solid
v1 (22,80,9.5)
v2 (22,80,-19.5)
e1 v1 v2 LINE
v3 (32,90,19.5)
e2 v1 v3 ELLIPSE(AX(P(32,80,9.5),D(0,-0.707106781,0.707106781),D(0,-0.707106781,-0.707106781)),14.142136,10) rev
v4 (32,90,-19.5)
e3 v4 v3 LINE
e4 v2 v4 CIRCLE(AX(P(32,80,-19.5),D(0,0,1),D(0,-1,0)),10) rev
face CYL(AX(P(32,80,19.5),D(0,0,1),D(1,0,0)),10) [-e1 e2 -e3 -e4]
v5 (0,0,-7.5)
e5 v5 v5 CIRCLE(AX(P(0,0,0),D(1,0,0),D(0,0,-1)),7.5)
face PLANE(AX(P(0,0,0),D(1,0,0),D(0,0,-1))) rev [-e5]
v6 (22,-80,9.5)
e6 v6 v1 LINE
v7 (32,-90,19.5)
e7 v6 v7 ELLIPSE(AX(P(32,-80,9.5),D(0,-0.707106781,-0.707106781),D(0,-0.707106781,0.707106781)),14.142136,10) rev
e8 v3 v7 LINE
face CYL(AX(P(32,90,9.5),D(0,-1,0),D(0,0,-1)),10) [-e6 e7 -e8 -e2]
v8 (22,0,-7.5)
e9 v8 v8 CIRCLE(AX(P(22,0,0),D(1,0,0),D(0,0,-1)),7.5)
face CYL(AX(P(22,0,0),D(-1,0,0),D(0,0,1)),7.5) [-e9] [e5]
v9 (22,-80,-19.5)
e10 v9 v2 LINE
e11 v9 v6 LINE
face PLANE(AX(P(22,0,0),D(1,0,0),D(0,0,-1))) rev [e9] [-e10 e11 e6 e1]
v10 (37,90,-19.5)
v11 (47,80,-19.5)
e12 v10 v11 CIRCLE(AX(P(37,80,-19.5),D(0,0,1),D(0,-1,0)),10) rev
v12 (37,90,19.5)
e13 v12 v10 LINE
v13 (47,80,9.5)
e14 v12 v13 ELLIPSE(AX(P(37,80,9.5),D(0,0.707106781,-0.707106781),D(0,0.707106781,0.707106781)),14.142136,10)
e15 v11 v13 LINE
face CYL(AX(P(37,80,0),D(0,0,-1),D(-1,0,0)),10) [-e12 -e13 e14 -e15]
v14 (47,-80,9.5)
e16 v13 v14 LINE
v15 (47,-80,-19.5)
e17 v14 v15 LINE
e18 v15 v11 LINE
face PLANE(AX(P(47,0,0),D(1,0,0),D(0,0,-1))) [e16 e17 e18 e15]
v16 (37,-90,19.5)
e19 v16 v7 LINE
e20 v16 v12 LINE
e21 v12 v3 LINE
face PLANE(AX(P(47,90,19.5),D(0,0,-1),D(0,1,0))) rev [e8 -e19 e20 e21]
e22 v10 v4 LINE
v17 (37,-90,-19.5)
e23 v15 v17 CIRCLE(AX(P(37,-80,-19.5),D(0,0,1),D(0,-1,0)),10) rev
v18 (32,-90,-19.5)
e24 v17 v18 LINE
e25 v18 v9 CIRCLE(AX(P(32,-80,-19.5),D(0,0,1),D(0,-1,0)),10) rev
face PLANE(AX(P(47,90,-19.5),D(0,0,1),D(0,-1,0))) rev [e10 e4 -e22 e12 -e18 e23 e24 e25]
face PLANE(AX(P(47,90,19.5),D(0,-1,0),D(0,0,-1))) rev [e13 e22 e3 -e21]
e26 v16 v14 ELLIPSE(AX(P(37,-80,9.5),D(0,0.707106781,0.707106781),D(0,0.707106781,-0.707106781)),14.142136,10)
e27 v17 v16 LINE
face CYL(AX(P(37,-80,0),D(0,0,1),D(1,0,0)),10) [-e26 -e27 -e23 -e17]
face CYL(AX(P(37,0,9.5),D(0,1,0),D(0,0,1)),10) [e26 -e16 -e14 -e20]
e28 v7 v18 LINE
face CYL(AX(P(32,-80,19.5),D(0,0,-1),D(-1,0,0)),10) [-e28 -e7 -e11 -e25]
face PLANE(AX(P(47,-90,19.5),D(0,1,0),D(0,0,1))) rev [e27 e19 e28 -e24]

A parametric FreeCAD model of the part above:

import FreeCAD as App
import Part
import Sketcher
from FreeCAD import Vector
Q = App.Units.Quantity


def edges_at(feature, points):
    """Names of the edges that pass closest to the given points."""
    edges = feature.Shape.Edges
    near = lambda p: min(range(len(edges)), key=lambda i: edges[i].distToShape(Part.Vertex(*p))[0])
    return sorted({f"Edge{near(p) + 1}" for p in points})

doc = App.newDocument("Part")
body = doc.addObject("PartDesign::Body", "Body")

# Sketch on YZ plane
sketch1 = body.newObject("Sketcher::SketchObject", "Sketch")
sketch1.AttachmentSupport = (doc.getObject("YZ_Plane"), [""])
sketch1.MapMode = "FlatFace"
sketch1.addGeometry(Part.Circle(Vector(0, 0, 0), Vector(0, 0, 1), 7), False)
sketch1.addConstraint(Sketcher.Constraint("Coincident", 0, 3, -1, 1))
sketch1.addConstraint(Sketcher.Constraint("Diameter", 0, Q("15 mm")))
pad1 = body.newObject("PartDesign::Pad", "Pad")
pad1.Profile = sketch1
pad1.Length = 22

# Sketch on YZ plane
sketch2 = body.newObject("Sketcher::SketchObject", "Sketch001")
sketch2.AttachmentSupport = (doc.getObject("YZ_Plane"), [""])
sketch2.MapMode = "FlatFace"
sketch2.AttachmentOffset = App.Placement(Vector(0, 0, 22), App.Rotation())
sketch2.addGeometry(Part.LineSegment(Vector(90, 20, 0), Vector(-90, 20, 0)), False)
sketch2.addGeometry(Part.LineSegment(Vector(-90, 20, 0), Vector(-90, -20, 0)), False)
sketch2.addGeometry(Part.LineSegment(Vector(-90, -20, 0), Vector(90, -20, 0)), False)
sketch2.addGeometry(Part.LineSegment(Vector(90, -20, 0), Vector(90, 20, 0)), False)
sketch2.addConstraint(Sketcher.Constraint("Coincident", 0, 2, 1, 1))
sketch2.addConstraint(Sketcher.Constraint("Coincident", 1, 2, 2, 1))
sketch2.addConstraint(Sketcher.Constraint("Coincident", 2, 2, 3, 1))
sketch2.addConstraint(Sketcher.Constraint("Coincident", 3, 2, 0, 1))
sketch2.addConstraint(Sketcher.Constraint("Horizontal", 0))
sketch2.addConstraint(Sketcher.Constraint("Vertical", 1))
sketch2.addConstraint(Sketcher.Constraint("Horizontal", 2))
sketch2.addConstraint(Sketcher.Constraint("Vertical", 3))
sketch2.addConstraint(Sketcher.Constraint("Symmetric", 0, 2, 2, 2, -1, 1))
sketch2.addConstraint(Sketcher.Constraint("DistanceX", 0, 2, 0, 1, Q("180 mm")))
sketch2.addConstraint(Sketcher.Constraint("DistanceY", 1, 2, 1, 1, Q("39 mm")))
pad2 = body.newObject("PartDesign::Pad", "Pad001")
pad2.Profile = sketch2
pad2.Length = 25
doc.recompute()

fillet = body.newObject("PartDesign::Fillet", "Fillet")
fillet.Base = (pad2, edges_at(pad2, [
    (22, 0, 19.5),
    (22, -90, 0),
    (22, 90, 0),
    (47, 0, 19.5),
    (47, -90, 0),
    (47, 90, 0),
]))
fillet.Radius = 10

doc.recompute()
